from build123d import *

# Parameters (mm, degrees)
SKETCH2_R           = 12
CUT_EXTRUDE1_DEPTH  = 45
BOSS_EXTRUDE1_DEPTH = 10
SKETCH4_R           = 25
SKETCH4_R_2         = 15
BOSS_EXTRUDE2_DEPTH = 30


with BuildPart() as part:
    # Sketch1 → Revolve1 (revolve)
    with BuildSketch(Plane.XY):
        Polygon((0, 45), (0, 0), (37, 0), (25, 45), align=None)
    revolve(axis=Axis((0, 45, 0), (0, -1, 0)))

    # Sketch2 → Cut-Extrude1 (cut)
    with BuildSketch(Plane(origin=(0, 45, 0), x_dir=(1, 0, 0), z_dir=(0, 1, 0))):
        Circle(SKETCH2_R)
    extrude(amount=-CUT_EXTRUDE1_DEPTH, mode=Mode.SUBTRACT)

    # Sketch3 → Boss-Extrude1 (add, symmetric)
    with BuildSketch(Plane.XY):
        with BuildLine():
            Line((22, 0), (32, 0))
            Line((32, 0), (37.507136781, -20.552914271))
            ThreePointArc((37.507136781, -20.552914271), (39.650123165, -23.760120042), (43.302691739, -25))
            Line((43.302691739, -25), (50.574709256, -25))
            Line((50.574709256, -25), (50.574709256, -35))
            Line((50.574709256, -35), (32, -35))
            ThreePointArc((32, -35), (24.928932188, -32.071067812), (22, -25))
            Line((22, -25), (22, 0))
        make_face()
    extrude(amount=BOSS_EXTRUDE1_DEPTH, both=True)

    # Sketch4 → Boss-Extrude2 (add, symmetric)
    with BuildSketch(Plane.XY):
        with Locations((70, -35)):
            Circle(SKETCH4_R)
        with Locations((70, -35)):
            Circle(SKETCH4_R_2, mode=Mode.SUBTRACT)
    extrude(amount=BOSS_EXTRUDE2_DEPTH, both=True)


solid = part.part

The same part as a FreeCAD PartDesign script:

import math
import FreeCAD as App
import Part
import Sketcher

V = App.Vector
Q = App.Units.Quantity

doc = App.newDocument("Part")
params = doc.addObject("Spreadsheet::Sheet", "Params")
for row, (alias, value) in enumerate([
    ("sketch1_width", "37 mm"),
    ("sketch1_width2", "25 mm"),
    ("sketch1_height", "45 mm"),
    ("revolution_angle", "360 deg"),
    ("sketch2_diameter", "24 mm"),
    ("pocket1_length", "45 mm"),
    ("sketch3_radius", "10 mm"),
    ("sketch3_radius2", "6 mm"),
    ("sketch3_height", "25 mm"),
    ("pad1_length", "20 mm"),
    ("sketch4_diameter", "50 mm"),
    ("sketch4_diameter2", "30 mm"),
    ("pad2_length", "60 mm"),
], start=1):
    params.set(f"A{row}", alias)
    params.set(f"B{row}", "=" + value)
    params.setAlias(f"B{row}", alias)

body = doc.addObject("PartDesign::Body", "Body")

sketch1 = doc.addObject("Sketcher::SketchObject", "Sketch")
body.addObject(sketch1)
sketch1.AttachmentSupport = (doc.XY_Plane, [""])
sketch1.MapMode = "FlatFace"
sketch1.addGeometry(Part.LineSegment(V(0, 45, 0), V(0, 0, 0)), False)
sketch1.addGeometry(Part.LineSegment(V(0, 0, 0), V(37, 0, 0)), False)
sketch1.addGeometry(Part.LineSegment(V(37, 0, 0), V(25, 45, 0)), False)
sketch1.addGeometry(Part.LineSegment(V(25, 45, 0), V(0, 45, 0)), False)
sketch1.addConstraint(Sketcher.Constraint("Coincident", 0, 2, 1, 1))
sketch1.addConstraint(Sketcher.Constraint("Coincident", 1, 2, 2, 1))
sketch1.addConstraint(Sketcher.Constraint("Coincident", 2, 2, 3, 1))
sketch1.addConstraint(Sketcher.Constraint("Coincident", 3, 2, 0, 1))
sketch1.addConstraint(Sketcher.Constraint("Vertical", 0))
sketch1.addConstraint(Sketcher.Constraint("Horizontal", 1))
sketch1.addConstraint(Sketcher.Constraint("Horizontal", 3))
sketch1.addConstraint(Sketcher.Constraint("Coincident", 0, 2, -1, 1))
sketch1.addConstraint(Sketcher.Constraint("DistanceX", 1, 1, 1, 2, 37.0))
sketch1.addConstraint(Sketcher.Constraint("DistanceX", 3, 2, 3, 1, 25.0))
sketch1.addConstraint(Sketcher.Constraint("DistanceY", 0, 2, 0, 1, 45.0))
sketch1.setExpression("Constraints[8]", "Params.sketch1_width")
sketch1.setExpression("Constraints[9]", "Params.sketch1_width2")
sketch1.setExpression("Constraints[10]", "Params.sketch1_height")
revolution = doc.addObject("PartDesign::Revolution", "Revolution")
body.addObject(revolution)
revolution.Profile = sketch1
revolution.ReferenceAxis = (sketch1, ["V_Axis"])
revolution.setExpression("Angle", "Params.revolution_angle")

sketch2 = doc.addObject("Sketcher::SketchObject", "Sketch001")
body.addObject(sketch2)
sketch2.AttachmentSupport = (doc.XZ_Plane, [""])
sketch2.MapMode = "FlatFace"
sketch2.AttachmentOffset = App.Placement(V(0, 0, -45), App.Rotation())
sketch2.addGeometry(Part.Circle(V(0, 0, 0), V(0, 0, 1), 12), False)
sketch2.addConstraint(Sketcher.Constraint("Coincident", 0, 3, -1, 1))
sketch2.addConstraint(Sketcher.Constraint("Diameter", 0, 24.0))
sketch2.setExpression("Constraints[1]", "Params.sketch2_diameter")
pocket1 = doc.addObject("PartDesign::Pocket", "Pocket")
body.addObject(pocket1)
pocket1.Profile = sketch2
pocket1.setExpression("Length", "Params.pocket1_length")
pocket1.Reversed = True

sketch3 = doc.addObject("Sketcher::SketchObject", "Sketch002")
body.addObject(sketch3)
sketch3.AttachmentSupport = (doc.XY_Plane, [""])
sketch3.MapMode = "FlatFace"
sketch3.addGeometry(Part.LineSegment(V(32, 0, 0), V(22, 0, 0)), False)
sketch3.addGeometry(Part.LineSegment(V(22, 0, 0), V(22, -25, 0)), False)
sketch3.addGeometry(Part.ArcOfCircle(Part.Circle(V(32, -25, 0), V(0, 0, 1), 10), math.radians(180), math.radians(270)), False)
sketch3.addGeometry(Part.LineSegment(V(32, -35, 0), V(51, -35, 0)), False)
sketch3.addGeometry(Part.LineSegment(V(51, -35, 0), V(51, -25, 0)), False)
sketch3.addGeometry(Part.LineSegment(V(51, -25, 0), V(43, -25, 0)), False)
sketch3.addGeometry(Part.ArcOfCircle(Part.Circle(V(43, -19, 0), V(0, 0, 1), 6), math.radians(-165), math.radians(-90)), False)
sketch3.addGeometry(Part.LineSegment(V(38, -21, 0), V(32, 0, 0)), False)
sketch3.addConstraint(Sketcher.Constraint("Coincident", 0, 2, 1, 1))
sketch3.addConstraint(Sketcher.Constraint("Tangent", 1, 2, 2, 1))
sketch3.addConstraint(Sketcher.Constraint("Tangent", 2, 2, 3, 1))
sketch3.addConstraint(Sketcher.Constraint("Coincident", 3, 2, 4, 1))
sketch3.addConstraint(Sketcher.Constraint("Coincident", 4, 2, 5, 1))
sketch3.addConstraint(Sketcher.Constraint("Tangent", 5, 2, 6, 2))
sketch3.addConstraint(Sketcher.Constraint("Tangent", 6, 1, 7, 1))
sketch3.addConstraint(Sketcher.Constraint("Coincident", 7, 2, 0, 1))
sketch3.addConstraint(Sketcher.Constraint("Horizontal", 0))
sketch3.addConstraint(Sketcher.Constraint("Vertical", 1))
sketch3.addConstraint(Sketcher.Constraint("Horizontal", 3))
sketch3.addConstraint(Sketcher.Constraint("Vertical", 4))
sketch3.addConstraint(Sketcher.Constraint("Horizontal", 5))
sketch3.addConstraint(Sketcher.Constraint("PointOnObject", 0, 2, -1))
sketch3.addConstraint(Sketcher.Constraint("Horizontal", 1, 2, 4, 2))
sketch3.addConstraint(Sketcher.Constraint("Vertical", 2, 2, 7, 2))
sketch3.addConstraint(Sketcher.Constraint("Radius", 2, 10.0))
sketch3.addConstraint(Sketcher.Constraint("Radius", 6, 6.0))
sketch3.addConstraint(Sketcher.Constraint("DistanceY", 1, 2, 1, 1, 25.0))
sketch3.addConstraint(Sketcher.Constraint("Angle", 7, Q("105 deg")))
sketch3.addConstraint(Sketcher.Constraint("DistanceX", -1, 1, 2, 3, 32.0))
sketch3.addConstraint(Sketcher.Constraint("DistanceX", 3, 1, 3, 2, 18.574709))
sketch3.setExpression("Constraints[16]", "Params.sketch3_radius")
sketch3.setExpression("Constraints[17]", "Params.sketch3_radius2")
sketch3.setExpression("Constraints[18]", "Params.sketch3_height")
pad1 = doc.addObject("PartDesign::Pad", "Pad")
body.addObject(pad1)
pad1.Profile = sketch3
pad1.setExpression("Length", "Params.pad1_length")
pad1.Midplane = True

sketch4 = doc.addObject("Sketcher::SketchObject", "Sketch003")
body.addObject(sketch4)
sketch4.AttachmentSupport = (doc.XY_Plane, [""])
sketch4.MapMode = "FlatFace"
sketch4.addGeometry(Part.Circle(V(70, -35, 0), V(0, 0, 1), 25), False)
sketch4.addGeometry(Part.Circle(V(70, -35, 0), V(0, 0, 1), 15), False)
sketch4.addConstraint(Sketcher.Constraint("Coincident", 1, 3, 0, 3))
sketch4.addConstraint(Sketcher.Constraint("Diameter", 0, 50.0))
sketch4.addConstraint(Sketcher.Constraint("Diameter", 1, 30.0))
sketch4.addConstraint(Sketcher.Constraint("DistanceX", -1, 1, 0, 3, 70.0))
sketch4.addConstraint(Sketcher.Constraint("DistanceY", 0, 3, -1, 1, 35.0))
sketch4.setExpression("Constraints[1]", "Params.sketch4_diameter")
sketch4.setExpression("Constraints[2]", "Params.sketch4_diameter2")
pad2 = doc.addObject("PartDesign::Pad", "Pad001")
body.addObject(pad2)
pad2.Profile = sketch4
pad2.setExpression("Length", "Params.pad2_length")
pad2.Midplane = True

doc.recompute()
